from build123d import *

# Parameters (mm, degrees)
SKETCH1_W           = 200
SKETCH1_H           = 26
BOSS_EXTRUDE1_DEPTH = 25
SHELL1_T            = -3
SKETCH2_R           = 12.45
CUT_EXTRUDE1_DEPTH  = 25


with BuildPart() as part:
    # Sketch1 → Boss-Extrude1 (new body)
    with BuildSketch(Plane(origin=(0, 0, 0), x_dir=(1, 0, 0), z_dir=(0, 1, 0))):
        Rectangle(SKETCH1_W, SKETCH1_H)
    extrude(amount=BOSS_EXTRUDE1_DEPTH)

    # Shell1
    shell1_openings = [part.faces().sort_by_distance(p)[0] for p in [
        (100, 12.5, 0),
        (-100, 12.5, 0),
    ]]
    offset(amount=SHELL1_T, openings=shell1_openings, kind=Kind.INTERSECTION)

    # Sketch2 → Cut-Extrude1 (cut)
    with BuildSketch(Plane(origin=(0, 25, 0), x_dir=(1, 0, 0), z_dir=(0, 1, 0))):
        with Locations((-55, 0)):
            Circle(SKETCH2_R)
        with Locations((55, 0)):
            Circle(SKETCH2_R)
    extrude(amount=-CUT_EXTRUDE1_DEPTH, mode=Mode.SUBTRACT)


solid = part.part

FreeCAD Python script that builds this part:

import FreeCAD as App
import Part
import Sketcher


def faces_at(feature, points):
    """Names of the faces that lie closest to the given points."""
    faces = feature.Shape.Faces
    near = lambda p: min(range(len(faces)), key=lambda i: faces[i].distToShape(Part.Vertex(*p))[0])
    return sorted({f"Face{near(p) + 1}" for p in points})

doc = App.newDocument("Part")
body = doc.addObject("PartDesign::Body", "Body")

# Sketch on XZ plane
sketch1 = body.newObject("Sketcher::SketchObject", "Sketch")
sketch1.AttachmentSupport = (doc.getObject("XZ_Plane"), [""])
sketch1.MapMode = "FlatFace"
sketch1.addGeometry(Part.LineSegment(App.Vector(-100, -13, 0), App.Vector(-100, 13, 0)), False)
sketch1.addGeometry(Part.LineSegment(App.Vector(-100, 13, 0), App.Vector(100, 13, 0)), False)
sketch1.addGeometry(Part.LineSegment(App.Vector(100, 13, 0), App.Vector(100, -13, 0)), False)
sketch1.addGeometry(Part.LineSegment(App.Vector(100, -13, 0), App.Vector(-100, -13, 0)), False)
sketch1.addConstraint(Sketcher.Constraint("Coincident", 0, 2, 1, 1))
sketch1.addConstraint(Sketcher.Constraint("Coincident", 1, 2, 2, 1))
sketch1.addConstraint(Sketcher.Constraint("Coincident", 2, 2, 3, 1))
sketch1.addConstraint(Sketcher.Constraint("Coincident", 3, 2, 0, 1))
sketch1.addConstraint(Sketcher.Constraint("Vertical", 0))
sketch1.addConstraint(Sketcher.Constraint("Horizontal", 1))
sketch1.addConstraint(Sketcher.Constraint("Vertical", 2))
sketch1.addConstraint(Sketcher.Constraint("Horizontal", 3))
sketch1.addConstraint(Sketcher.Constraint("Symmetric", 0, 2, 2, 2, -1, 1))
sketch1.addConstraint(Sketcher.Constraint("DistanceX", 1, 1, 1, 2, 200.0))
sketch1.addConstraint(Sketcher.Constraint("DistanceY", 0, 1, 0, 2, 26.0))
pad1 = body.newObject("PartDesign::Pad", "Pad")
pad1.Profile = sketch1
pad1.Length = 25
pad1.Reversed = True
doc.recompute()

thickness = body.newObject("PartDesign::Thickness", "Thickness")
thickness.Base = (pad1, faces_at(pad1, [(100, 12.5, 0), (-100, 12.5, 0)]))
thickness.Value = 3
thickness.Reversed = True
thickness.Join = "Intersection"

# Sketch on XZ plane
sketch2 = body.newObject("Sketcher::SketchObject", "Sketch001")
sketch2.AttachmentSupport = (doc.getObject("XZ_Plane"), [""])
sketch2.MapMode = "FlatFace"
sketch2.AttachmentOffset = App.Placement(App.Vector(0, 0, -25), App.Rotation())
sketch2.addGeometry(Part.Circle(App.Vector(-55, 0, 0), App.Vector(0, 0, 1), 12), False)
sketch2.addGeometry(Part.Circle(App.Vector(55, 0, 0), App.Vector(0, 0, 1), 12), False)
sketch2.addConstraint(Sketcher.Constraint("Equal", 0, 1))
sketch2.addConstraint(Sketcher.Constraint("Symmetric", 0, 3, 1, 3, -1, 1))
sketch2.addConstraint(Sketcher.Constraint("PointOnObject", 0, 3, -1))
sketch2.addConstraint(Sketcher.Constraint("Diameter", 0, 24.9))
sketch2.addConstraint(Sketcher.Constraint("DistanceX", 0, 3, -1, 1, 55.0))
pocket1 = body.newObject("PartDesign::Pocket", "Pocket")
pocket1.Profile = sketch2
pocket1.Length = 25
pocket1.Reversed = True

doc.recompute()
